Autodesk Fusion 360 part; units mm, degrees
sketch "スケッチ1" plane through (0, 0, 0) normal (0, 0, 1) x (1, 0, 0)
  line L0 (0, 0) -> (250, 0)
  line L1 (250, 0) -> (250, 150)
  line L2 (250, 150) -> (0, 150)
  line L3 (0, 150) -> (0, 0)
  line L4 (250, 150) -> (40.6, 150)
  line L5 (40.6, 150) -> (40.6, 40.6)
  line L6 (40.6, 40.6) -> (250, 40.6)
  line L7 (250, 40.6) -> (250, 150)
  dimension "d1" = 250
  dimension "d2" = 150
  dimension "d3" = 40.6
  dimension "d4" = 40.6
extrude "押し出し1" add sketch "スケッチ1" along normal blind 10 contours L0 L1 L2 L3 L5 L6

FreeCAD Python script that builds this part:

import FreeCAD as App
import Part
import Sketcher

V = App.Vector
Q = App.Units.Quantity


def add_polygon(sketch, points):
    """Adds a closed chain of lines whose ends are joined by coincident constraints."""
    first, n = sketch.GeometryCount, len(points)
    for a, b in zip(points, points[1:] + points[:1]):
        sketch.addGeometry(Part.LineSegment(App.Vector(*a, 0), App.Vector(*b, 0)), False)
    for i in range(n):
        sketch.addConstraint(Sketcher.Constraint("Coincident", first + i, 2, first + (i + 1) % n, 1))

doc = App.newDocument("Part")
params = doc.addObject("Spreadsheet::Sheet", "Params")
for row, (alias, value) in enumerate([
    ("sketch1_width", "250 mm"),
    ("sketch1_height", "150 mm"),
    ("sketch1_width2", "40.6 mm"),
    ("pad1_length", "10 mm"),
], start=1):
    params.set(f"A{row}", alias)
    params.set(f"B{row}", "=" + value)
    params.setAlias(f"B{row}", alias)

body = doc.addObject("PartDesign::Body", "Body")

sketch1 = body.newObject("Sketcher::SketchObject", "Sketch")
sketch1.AttachmentSupport = (doc.getObject("XY_Plane"), [""])
sketch1.MapMode = "FlatFace"
add_polygon(sketch1, [(0, 150), (0, 0), (250, 0), (250, 41), (41, 41), (41, 150)])
sketch1.addConstraint([
    Sketcher.Constraint("Vertical", 0),
    Sketcher.Constraint("Horizontal", 1),
    Sketcher.Constraint("Vertical", 2),
    Sketcher.Constraint("Horizontal", 3),
    Sketcher.Constraint("Vertical", 4),
    Sketcher.Constraint("Horizontal", 5),
    Sketcher.Constraint("Coincident", 0, 2, -1, 1),
    Sketcher.Constraint("Equal", 5, 2),
    Sketcher.Constraint("DistanceX", 1, 1, 1, 2, Q("250 mm")),
    Sketcher.Constraint("DistanceY", 0, 2, 0, 1, Q("150 mm")),
    Sketcher.Constraint("DistanceX", 5, 2, 5, 1, Q("40.6 mm")),
])
sketch1.setExpression("Constraints[14]", "Params.sketch1_width")
sketch1.setExpression("Constraints[15]", "Params.sketch1_height")
sketch1.setExpression("Constraints[16]", "Params.sketch1_width2")
pad1 = body.newObject("PartDesign::Pad", "Pad")
pad1.Profile = sketch1
pad1.setExpression("Length", "Params.pad1_length")

doc.recompute()
